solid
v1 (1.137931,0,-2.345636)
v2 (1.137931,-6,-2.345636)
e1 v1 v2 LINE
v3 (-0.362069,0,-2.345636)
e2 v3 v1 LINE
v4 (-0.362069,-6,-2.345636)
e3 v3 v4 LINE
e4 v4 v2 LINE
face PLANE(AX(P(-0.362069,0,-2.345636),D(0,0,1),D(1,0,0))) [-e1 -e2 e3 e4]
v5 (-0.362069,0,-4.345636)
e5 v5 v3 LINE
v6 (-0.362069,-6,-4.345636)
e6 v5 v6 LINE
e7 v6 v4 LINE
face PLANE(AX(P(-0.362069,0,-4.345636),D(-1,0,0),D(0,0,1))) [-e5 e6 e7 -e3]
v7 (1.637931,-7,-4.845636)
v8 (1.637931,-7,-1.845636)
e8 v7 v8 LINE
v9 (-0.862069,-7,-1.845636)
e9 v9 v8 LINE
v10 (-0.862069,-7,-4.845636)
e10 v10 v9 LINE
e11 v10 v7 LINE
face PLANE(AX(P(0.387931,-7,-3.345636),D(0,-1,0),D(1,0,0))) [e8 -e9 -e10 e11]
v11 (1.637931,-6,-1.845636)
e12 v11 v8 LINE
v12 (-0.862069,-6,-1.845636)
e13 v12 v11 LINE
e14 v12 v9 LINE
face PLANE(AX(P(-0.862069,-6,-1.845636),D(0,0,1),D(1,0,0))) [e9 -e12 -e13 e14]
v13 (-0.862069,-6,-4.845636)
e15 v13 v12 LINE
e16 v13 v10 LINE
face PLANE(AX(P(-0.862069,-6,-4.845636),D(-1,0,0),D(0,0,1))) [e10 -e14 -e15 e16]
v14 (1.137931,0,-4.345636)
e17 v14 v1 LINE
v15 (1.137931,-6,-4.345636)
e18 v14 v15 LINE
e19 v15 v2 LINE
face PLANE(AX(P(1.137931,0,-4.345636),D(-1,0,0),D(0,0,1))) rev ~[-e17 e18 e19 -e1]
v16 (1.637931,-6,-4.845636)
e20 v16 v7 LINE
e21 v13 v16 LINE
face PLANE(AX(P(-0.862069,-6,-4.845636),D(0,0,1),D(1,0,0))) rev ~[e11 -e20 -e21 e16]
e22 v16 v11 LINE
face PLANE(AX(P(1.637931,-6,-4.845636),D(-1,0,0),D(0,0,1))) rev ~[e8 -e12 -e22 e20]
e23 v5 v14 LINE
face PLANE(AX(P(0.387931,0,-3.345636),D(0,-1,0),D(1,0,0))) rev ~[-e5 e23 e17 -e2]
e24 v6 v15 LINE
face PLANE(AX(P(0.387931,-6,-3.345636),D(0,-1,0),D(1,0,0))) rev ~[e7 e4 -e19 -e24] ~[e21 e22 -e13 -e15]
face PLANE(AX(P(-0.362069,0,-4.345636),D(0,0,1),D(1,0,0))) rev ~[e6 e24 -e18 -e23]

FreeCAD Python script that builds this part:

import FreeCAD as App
import Part
import Sketcher


def add_polygon(sketch, points):
    """Adds a closed chain of lines whose ends are joined by coincident constraints."""
    first, n = sketch.GeometryCount, len(points)
    for a, b in zip(points, points[1:] + points[:1]):
        sketch.addGeometry(Part.LineSegment(App.Vector(*a, 0), App.Vector(*b, 0)), False)
    for i in range(n):
        sketch.addConstraint(Sketcher.Constraint("Coincident", first + i, 2, first + (i + 1) % n, 1))

doc = App.newDocument("Part")
body = doc.addObject("PartDesign::Body", "Body")

sketch1 = body.newObject("Sketcher::SketchObject", "Sketch")
sketch1.AttachmentSupport = (doc.getObject("XZ_Plane"), [""])
sketch1.MapMode = "FlatFace"
add_polygon(sketch1, [(-0.362069, -2.345636), (-0.362069, -4.345636), (1.137931, -4.345636), (1.137931, -2.345636)])
sketch1.addConstraint(Sketcher.Constraint("Vertical", 0))
sketch1.addConstraint(Sketcher.Constraint("Horizontal", 1))
sketch1.addConstraint(Sketcher.Constraint("Vertical", 2))
sketch1.addConstraint(Sketcher.Constraint("Horizontal", 3))
sketch1.addConstraint(Sketcher.Constraint("DistanceY", 0, 2, 0, 1, 2.0))
sketch1.addConstraint(Sketcher.Constraint("DistanceX", 1, 1, 1, 2, 1.5))
sketch1.addConstraint(Sketcher.Constraint("DistanceX", 0, 2, -1, 1, 0.362069))
sketch1.addConstraint(Sketcher.Constraint("DistanceY", 0, 2, -1, 1, 4.345636))
pad1 = body.newObject("PartDesign::Pad", "Pad")
pad1.Profile = sketch1
pad1.Length = 6

sketch2 = body.newObject("Sketcher::SketchObject", "Sketch001")
sketch2.AttachmentSupport = (doc.getObject("XZ_Plane"), [""])
sketch2.MapMode = "FlatFace"
sketch2.AttachmentOffset = App.Placement(App.Vector(0, 0, 6), App.Rotation())
add_polygon(sketch2, [(-0.862069, -1.845636), (-0.862069, -4.845636), (1.637931, -4.845636), (1.637931, -1.845636)])
sketch2.addConstraint(Sketcher.Constraint("Vertical", 0))
sketch2.addConstraint(Sketcher.Constraint("Horizontal", 1))
sketch2.addConstraint(Sketcher.Constraint("Vertical", 2))
sketch2.addConstraint(Sketcher.Constraint("Horizontal", 3))
sketch2.addConstraint(Sketcher.Constraint("DistanceY", 0, 2, 0, 1, 3.0))
sketch2.addConstraint(Sketcher.Constraint("DistanceX", 1, 1, 1, 2, 2.5))
sketch2.addConstraint(Sketcher.Constraint("DistanceX", 0, 2, -1, 1, 0.862069))
sketch2.addConstraint(Sketcher.Constraint("DistanceY", 0, 2, -1, 1, 4.845636))
pad2 = body.newObject("PartDesign::Pad", "Pad001")
pad2.Profile = sketch2
pad2.Length = 1

sketch3 = body.newObject("Sketcher::SketchObject", "Sketch002")
sketch3.AttachmentSupport = (doc.getObject("XZ_Plane"), [""])
sketch3.MapMode = "FlatFace"
sketch3.AttachmentOffset = App.Placement(App.Vector(0, 0, 6), App.Rotation())
add_polygon(sketch3, [(-0.862069, -1.845636), (-0.862069, -4.845636), (1.637931, -4.845636), (1.637931, -1.845636)])
sketch3.addConstraint(Sketcher.Constraint("Vertical", 0))
sketch3.addConstraint(Sketcher.Constraint("Horizontal", 1))
sketch3.addConstraint(Sketcher.Constraint("Vertical", 2))
sketch3.addConstraint(Sketcher.Constraint("Horizontal", 3))
sketch3.addConstraint(Sketcher.Constraint("DistanceY", 0, 2, 0, 1, 3.0))
sketch3.addConstraint(Sketcher.Constraint("DistanceX", 1, 1, 1, 2, 2.5))
sketch3.addConstraint(Sketcher.Constraint("DistanceX", 0, 2, -1, 1, 0.862069))
sketch3.addConstraint(Sketcher.Constraint("DistanceY", 0, 2, -1, 1, 4.845636))
pad3 = body.newObject("PartDesign::Pad", "Pad002")
pad3.Profile = sketch3
pad3.Length = 1

doc.recompute()
